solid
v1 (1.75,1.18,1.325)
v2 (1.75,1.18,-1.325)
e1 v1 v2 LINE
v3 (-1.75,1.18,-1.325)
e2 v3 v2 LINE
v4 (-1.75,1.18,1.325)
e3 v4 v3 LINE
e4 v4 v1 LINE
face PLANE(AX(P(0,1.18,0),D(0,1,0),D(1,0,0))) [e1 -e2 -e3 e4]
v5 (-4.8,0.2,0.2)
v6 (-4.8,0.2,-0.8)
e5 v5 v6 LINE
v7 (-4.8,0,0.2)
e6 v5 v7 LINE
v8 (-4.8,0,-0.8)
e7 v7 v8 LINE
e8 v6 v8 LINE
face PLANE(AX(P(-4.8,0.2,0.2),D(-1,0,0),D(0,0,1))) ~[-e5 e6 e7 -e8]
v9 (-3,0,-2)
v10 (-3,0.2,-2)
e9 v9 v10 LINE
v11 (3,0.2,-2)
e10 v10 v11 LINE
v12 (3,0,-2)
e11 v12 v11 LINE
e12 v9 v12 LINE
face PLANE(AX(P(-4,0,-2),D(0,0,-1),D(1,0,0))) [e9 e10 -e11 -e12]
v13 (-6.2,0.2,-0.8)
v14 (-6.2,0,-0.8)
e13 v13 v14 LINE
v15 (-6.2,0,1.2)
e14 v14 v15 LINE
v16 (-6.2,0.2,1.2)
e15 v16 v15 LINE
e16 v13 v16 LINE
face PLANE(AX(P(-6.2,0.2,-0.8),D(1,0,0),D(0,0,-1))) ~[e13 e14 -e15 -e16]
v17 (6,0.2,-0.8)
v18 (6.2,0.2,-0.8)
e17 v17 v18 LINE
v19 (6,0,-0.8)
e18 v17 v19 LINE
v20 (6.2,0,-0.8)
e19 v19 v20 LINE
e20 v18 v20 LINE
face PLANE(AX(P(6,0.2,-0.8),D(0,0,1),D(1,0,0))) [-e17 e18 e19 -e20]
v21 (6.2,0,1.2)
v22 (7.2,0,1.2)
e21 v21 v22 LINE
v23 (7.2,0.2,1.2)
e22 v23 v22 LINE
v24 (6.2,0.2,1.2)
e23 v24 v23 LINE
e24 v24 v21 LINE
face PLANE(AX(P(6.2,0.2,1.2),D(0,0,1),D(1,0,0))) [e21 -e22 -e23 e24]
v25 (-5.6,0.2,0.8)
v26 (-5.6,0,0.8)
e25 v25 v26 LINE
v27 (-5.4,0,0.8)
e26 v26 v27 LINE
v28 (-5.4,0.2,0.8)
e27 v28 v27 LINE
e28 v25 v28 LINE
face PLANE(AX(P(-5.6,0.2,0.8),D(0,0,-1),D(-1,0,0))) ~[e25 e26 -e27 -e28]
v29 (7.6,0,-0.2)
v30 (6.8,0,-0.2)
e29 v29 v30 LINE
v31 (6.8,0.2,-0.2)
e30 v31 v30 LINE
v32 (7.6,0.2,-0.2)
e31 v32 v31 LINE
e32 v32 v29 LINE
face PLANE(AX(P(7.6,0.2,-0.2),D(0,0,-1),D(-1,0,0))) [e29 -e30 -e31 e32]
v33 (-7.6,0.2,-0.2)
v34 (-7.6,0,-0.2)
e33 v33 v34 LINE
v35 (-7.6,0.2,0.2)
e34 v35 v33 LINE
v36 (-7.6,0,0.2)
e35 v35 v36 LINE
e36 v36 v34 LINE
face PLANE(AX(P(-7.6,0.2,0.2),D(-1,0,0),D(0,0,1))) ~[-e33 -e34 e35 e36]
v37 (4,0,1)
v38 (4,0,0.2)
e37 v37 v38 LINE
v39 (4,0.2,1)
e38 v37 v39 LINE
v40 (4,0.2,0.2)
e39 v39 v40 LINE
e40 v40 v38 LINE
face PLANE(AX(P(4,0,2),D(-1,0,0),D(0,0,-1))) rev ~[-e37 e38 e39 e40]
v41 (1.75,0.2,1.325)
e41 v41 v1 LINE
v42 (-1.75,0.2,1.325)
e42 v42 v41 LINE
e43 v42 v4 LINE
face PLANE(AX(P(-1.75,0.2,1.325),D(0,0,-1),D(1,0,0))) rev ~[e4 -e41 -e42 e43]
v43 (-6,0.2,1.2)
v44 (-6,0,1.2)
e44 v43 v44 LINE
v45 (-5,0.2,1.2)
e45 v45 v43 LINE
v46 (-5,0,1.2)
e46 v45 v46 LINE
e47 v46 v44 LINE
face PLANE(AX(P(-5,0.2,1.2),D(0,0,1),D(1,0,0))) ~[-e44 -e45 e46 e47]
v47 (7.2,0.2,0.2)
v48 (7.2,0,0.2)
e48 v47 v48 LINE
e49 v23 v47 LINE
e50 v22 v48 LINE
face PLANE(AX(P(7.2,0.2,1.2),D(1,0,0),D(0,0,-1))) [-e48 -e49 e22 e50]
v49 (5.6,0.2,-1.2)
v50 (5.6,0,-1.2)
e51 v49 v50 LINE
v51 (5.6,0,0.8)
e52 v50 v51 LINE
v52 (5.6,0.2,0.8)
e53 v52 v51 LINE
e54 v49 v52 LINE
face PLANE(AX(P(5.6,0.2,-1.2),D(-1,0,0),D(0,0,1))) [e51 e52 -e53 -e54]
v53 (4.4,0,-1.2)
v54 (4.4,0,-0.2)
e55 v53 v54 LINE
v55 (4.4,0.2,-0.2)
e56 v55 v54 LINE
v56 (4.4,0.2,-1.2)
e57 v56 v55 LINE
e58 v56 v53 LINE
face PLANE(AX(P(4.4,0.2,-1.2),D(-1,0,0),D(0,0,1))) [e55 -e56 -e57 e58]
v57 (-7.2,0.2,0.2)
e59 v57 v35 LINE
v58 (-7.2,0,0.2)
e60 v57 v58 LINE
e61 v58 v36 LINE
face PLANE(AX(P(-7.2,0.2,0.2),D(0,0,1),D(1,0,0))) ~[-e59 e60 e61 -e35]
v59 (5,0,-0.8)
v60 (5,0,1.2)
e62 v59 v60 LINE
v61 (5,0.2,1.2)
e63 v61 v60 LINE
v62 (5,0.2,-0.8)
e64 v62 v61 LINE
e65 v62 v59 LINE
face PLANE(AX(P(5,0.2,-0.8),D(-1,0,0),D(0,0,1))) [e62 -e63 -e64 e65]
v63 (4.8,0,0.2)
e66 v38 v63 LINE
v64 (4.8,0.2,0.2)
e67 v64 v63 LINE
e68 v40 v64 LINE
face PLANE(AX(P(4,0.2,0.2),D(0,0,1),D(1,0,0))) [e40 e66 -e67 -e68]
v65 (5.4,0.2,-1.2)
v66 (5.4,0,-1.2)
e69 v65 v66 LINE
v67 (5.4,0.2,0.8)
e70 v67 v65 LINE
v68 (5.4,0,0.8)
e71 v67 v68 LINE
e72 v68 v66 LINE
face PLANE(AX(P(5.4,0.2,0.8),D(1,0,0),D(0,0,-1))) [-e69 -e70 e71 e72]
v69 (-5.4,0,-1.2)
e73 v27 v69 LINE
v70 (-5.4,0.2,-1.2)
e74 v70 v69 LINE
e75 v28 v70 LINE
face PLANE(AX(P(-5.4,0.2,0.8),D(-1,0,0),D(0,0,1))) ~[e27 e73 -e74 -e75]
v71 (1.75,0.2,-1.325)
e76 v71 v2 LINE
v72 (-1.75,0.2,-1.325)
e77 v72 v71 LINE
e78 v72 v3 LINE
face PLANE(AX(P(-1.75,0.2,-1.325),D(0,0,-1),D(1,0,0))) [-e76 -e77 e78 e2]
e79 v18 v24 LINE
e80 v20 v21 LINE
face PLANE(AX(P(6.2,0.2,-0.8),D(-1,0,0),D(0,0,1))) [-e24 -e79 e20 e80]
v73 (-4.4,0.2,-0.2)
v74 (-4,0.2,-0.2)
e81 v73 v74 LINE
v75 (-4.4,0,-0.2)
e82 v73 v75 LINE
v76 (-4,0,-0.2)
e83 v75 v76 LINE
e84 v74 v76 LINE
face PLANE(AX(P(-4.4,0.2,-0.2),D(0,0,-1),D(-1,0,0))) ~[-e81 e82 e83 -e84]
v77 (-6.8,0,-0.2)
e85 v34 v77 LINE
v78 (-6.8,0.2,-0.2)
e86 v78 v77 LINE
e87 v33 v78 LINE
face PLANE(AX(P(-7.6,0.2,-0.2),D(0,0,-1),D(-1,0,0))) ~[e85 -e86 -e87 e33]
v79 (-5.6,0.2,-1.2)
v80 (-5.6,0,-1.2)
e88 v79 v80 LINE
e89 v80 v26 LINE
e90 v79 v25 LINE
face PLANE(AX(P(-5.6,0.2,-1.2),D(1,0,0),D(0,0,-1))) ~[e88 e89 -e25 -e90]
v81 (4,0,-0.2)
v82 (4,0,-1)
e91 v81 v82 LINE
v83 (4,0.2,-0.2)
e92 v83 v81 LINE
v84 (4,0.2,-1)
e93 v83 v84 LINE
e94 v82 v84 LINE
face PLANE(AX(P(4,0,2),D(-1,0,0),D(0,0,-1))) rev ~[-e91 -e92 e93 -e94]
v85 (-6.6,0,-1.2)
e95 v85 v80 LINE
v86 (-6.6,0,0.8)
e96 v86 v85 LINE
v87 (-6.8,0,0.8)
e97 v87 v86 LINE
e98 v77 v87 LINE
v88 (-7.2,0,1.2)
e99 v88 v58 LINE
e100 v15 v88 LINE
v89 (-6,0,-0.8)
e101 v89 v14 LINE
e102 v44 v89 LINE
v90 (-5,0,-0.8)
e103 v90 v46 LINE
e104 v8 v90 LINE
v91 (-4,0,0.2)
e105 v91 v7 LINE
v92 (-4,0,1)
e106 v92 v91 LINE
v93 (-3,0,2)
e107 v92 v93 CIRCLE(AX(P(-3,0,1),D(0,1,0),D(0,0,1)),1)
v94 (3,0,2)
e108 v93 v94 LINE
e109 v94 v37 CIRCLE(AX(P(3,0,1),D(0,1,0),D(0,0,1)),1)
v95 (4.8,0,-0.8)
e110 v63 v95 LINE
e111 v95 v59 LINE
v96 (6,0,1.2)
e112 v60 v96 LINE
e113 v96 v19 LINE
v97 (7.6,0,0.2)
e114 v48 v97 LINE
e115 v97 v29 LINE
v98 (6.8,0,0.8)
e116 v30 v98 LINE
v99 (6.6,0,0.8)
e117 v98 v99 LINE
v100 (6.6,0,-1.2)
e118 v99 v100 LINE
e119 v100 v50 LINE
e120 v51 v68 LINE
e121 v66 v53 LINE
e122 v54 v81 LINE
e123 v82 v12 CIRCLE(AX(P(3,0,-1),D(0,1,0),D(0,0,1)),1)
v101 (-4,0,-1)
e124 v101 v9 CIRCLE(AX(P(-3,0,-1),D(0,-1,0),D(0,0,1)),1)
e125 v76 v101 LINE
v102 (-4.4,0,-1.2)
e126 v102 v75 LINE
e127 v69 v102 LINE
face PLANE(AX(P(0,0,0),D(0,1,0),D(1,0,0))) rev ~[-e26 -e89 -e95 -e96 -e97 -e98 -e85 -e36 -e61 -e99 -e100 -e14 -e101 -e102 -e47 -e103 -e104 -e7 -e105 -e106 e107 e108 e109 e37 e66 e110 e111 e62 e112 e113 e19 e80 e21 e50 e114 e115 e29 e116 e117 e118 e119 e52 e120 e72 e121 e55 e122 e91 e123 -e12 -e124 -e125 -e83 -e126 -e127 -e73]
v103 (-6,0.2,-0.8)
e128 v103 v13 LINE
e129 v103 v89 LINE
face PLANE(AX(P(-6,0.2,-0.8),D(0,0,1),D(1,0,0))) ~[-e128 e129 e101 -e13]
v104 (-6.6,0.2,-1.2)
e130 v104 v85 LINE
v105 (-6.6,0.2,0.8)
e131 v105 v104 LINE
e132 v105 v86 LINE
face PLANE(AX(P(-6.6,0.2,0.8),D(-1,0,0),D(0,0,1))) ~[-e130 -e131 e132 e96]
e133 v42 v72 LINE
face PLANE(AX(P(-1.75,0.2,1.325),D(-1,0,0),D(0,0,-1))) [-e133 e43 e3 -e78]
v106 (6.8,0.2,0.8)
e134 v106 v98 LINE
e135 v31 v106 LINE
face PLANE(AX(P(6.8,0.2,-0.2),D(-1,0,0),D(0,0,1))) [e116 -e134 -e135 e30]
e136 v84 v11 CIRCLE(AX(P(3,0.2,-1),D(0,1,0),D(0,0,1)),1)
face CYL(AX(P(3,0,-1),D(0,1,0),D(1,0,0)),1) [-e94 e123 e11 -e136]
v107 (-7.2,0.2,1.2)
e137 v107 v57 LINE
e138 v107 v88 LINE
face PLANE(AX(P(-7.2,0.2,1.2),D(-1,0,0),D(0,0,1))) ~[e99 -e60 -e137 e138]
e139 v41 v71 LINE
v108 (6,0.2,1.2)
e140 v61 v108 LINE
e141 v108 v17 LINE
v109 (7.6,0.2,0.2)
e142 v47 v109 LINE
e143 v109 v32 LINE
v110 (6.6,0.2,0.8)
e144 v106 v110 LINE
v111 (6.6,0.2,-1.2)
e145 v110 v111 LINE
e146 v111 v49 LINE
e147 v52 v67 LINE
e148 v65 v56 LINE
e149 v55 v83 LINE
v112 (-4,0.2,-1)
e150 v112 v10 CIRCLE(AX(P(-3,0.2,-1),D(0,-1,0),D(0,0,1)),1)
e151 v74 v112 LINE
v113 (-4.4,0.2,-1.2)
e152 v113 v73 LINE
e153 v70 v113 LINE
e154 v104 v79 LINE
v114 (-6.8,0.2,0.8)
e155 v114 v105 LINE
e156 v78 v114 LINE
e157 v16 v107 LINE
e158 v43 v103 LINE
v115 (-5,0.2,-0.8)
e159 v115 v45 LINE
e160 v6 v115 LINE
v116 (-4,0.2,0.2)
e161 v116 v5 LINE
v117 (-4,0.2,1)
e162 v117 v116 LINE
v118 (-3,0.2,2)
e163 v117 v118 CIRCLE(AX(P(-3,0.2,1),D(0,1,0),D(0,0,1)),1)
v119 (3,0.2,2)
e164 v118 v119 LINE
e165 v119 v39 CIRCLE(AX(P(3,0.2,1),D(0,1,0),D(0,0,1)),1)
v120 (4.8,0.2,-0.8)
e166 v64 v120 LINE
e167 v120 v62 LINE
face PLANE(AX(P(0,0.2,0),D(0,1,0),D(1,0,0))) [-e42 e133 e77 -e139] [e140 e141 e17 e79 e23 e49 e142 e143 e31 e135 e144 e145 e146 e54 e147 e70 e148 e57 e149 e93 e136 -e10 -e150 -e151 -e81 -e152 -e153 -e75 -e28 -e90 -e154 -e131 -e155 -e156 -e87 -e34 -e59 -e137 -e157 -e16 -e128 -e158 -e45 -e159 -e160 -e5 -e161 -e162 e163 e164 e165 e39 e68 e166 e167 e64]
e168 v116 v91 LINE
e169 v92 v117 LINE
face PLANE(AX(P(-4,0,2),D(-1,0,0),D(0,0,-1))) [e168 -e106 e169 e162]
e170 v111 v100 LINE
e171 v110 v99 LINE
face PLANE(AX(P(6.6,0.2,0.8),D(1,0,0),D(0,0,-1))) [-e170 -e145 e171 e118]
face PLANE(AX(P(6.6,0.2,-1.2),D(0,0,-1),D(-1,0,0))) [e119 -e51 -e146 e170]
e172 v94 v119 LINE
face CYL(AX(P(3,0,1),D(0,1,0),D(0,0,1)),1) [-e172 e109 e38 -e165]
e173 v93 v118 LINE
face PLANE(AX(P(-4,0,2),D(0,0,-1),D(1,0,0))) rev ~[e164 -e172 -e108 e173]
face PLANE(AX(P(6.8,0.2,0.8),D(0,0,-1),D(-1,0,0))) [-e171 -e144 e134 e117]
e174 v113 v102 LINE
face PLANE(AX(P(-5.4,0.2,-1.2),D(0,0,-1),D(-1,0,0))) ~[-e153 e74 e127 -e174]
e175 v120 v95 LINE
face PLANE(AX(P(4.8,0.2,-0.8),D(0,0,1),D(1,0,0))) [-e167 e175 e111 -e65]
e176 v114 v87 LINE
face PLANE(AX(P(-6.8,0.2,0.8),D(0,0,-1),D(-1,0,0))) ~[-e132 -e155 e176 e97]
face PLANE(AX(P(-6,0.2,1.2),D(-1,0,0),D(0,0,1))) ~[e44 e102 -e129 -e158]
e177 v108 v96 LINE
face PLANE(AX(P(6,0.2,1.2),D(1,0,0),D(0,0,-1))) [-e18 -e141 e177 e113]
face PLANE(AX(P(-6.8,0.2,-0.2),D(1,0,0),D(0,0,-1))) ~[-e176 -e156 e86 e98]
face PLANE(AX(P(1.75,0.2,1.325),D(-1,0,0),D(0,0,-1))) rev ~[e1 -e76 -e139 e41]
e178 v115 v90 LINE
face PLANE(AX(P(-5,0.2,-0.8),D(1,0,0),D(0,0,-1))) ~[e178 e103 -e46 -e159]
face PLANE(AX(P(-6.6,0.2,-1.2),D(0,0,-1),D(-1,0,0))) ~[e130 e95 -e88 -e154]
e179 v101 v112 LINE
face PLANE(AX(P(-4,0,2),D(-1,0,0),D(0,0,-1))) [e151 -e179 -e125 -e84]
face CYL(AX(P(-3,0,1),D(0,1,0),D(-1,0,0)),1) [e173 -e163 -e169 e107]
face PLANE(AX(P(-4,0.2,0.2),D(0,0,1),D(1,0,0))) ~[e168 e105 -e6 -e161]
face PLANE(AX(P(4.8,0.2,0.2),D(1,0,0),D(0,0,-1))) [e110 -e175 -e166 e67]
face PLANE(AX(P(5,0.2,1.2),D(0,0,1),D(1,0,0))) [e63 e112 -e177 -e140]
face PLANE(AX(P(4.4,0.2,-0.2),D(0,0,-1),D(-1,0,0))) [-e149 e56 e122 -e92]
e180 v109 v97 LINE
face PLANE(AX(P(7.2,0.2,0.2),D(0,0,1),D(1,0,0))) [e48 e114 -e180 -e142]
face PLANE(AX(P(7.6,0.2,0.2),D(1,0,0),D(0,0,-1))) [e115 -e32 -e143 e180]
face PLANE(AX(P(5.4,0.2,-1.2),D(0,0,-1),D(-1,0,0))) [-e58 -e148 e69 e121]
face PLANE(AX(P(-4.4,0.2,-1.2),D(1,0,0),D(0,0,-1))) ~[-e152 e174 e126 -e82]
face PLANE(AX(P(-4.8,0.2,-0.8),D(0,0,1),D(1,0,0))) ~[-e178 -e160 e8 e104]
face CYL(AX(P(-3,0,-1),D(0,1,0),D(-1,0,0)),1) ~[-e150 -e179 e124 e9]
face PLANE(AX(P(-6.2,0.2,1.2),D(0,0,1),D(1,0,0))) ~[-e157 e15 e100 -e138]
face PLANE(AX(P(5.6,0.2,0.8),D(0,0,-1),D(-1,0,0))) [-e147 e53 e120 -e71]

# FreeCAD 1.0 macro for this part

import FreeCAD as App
import Part
import Sketcher
Q = App.Units.Quantity


def edges_at(feature, points):
    """Names of the edges that pass closest to the given points."""
    edges = feature.Shape.Edges
    near = lambda p: min(range(len(edges)), key=lambda i: edges[i].distToShape(Part.Vertex(*p))[0])
    return sorted({f"Edge{near(p) + 1}" for p in points})


def add_polygon(sketch, points):
    """Adds a closed chain of lines whose ends are joined by coincident constraints."""
    first, n = sketch.GeometryCount, len(points)
    for a, b in zip(points, points[1:] + points[:1]):
        sketch.addGeometry(Part.LineSegment(App.Vector(*a, 0), App.Vector(*b, 0)), False)
    for i in range(n):
        sketch.addConstraint(Sketcher.Constraint("Coincident", first + i, 2, first + (i + 1) % n, 1))

doc = App.newDocument("Part")
body = doc.addObject("PartDesign::Body", "Body")

sketch1 = doc.addObject("Sketcher::SketchObject", "Sketch")
body.addObject(sketch1)
sketch1.AttachmentSupport = (doc.XZ_Plane, [""])
sketch1.MapMode = "FlatFace"
add_polygon(sketch1, [(-4, -2), (-4, 2), (4, 2), (4, -2)])
sketch1.addConstraint([
    Sketcher.Constraint("Vertical", 0),
    Sketcher.Constraint("Horizontal", 1),
    Sketcher.Constraint("Vertical", 2),
    Sketcher.Constraint("Horizontal", 3),
    Sketcher.Constraint("Symmetric", 0, 2, 2, 2, -1, 1),
    Sketcher.Constraint("DistanceX", 1, 1, 1, 2, Q("8 mm")),
    Sketcher.Constraint("DistanceY", 0, 1, 0, 2, Q("4 mm")),
])
pad1 = doc.addObject("PartDesign::Pad", "Pad")
body.addObject(pad1)
pad1.Profile = sketch1
pad1.Length = 0.2
pad1.Reversed = True
doc.recompute()

fillet = doc.addObject("PartDesign::Fillet", "Fillet")
body.addObject(fillet)
fillet.Base = (pad1, edges_at(pad1, [
    (4, 0.1, 2),
    (-4, 0.1, 2),
    (-4, 0.1, -2),
    (4, 0.1, -2),
]))
fillet.Radius = 1

sketch2 = doc.addObject("Sketcher::SketchObject", "Sketch001")
body.addObject(sketch2)
sketch2.AttachmentSupport = (doc.XZ_Plane, [""])
sketch2.MapMode = "FlatFace"
sketch2.AttachmentOffset = App.Placement(App.Vector(0, 0, -0.2), App.Rotation())
add_polygon(sketch2, [(4, -0.2), (4, 0.2), (4.8, 0.2), (4.8, -0.8), (5, -0.8), (5, 1.2), (6, 1.2), (6, -0.8), (6.2, -0.8), (6.2, 1.2), (7.2, 1.2), (7.2, 0.2), (7.6, 0.2), (7.6, -0.2), (6.8, -0.2), (6.8, 0.8), (6.6, 0.8), (6.6, -1.2), (5.6, -1.2), (5.6, 0.8), (5.4, 0.8), (5.4, -1.2), (4.4, -1.2), (4.4, -0.2)])
sketch2.addConstraint([
    Sketcher.Constraint("Vertical", 0),
    Sketcher.Constraint("Horizontal", 1),
    Sketcher.Constraint("Vertical", 2),
    Sketcher.Constraint("Horizontal", 3),
    Sketcher.Constraint("Vertical", 4),
    Sketcher.Constraint("Horizontal", 5),
    Sketcher.Constraint("Vertical", 6),
    Sketcher.Constraint("Horizontal", 7),
    Sketcher.Constraint("Vertical", 8),
    Sketcher.Constraint("Horizontal", 9),
    Sketcher.Constraint("Vertical", 10),
    Sketcher.Constraint("Horizontal", 11),
    Sketcher.Constraint("Vertical", 12),
    Sketcher.Constraint("Horizontal", 13),
    Sketcher.Constraint("Vertical", 14),
    Sketcher.Constraint("Horizontal", 15),
    Sketcher.Constraint("Vertical", 16),
    Sketcher.Constraint("Horizontal", 17),
    Sketcher.Constraint("Vertical", 18),
    Sketcher.Constraint("Horizontal", 19),
    Sketcher.Constraint("Vertical", 20),
    Sketcher.Constraint("Horizontal", 21),
    Sketcher.Constraint("Vertical", 22),
    Sketcher.Constraint("Horizontal", 23),
    Sketcher.Constraint("Horizontal", 3, 2, 6, 2),
    Sketcher.Constraint("Horizontal", 5, 2, 8, 2),
    Sketcher.Constraint("Horizontal", 1, 2, 10, 2),
    Sketcher.Constraint("Horizontal", 15, 2, 18, 2),
    Sketcher.Constraint("Horizontal", 17, 2, 20, 2),
    Sketcher.Constraint("Horizontal", 13, 2, 22, 2),
    Sketcher.Constraint("Equal", 3, 7),
    Sketcher.Constraint("Equal", 5, 9),
    Sketcher.Constraint("Equal", 1, 13),
    Sketcher.Constraint("Equal", 7, 15),
    Sketcher.Constraint("Equal", 9, 17),
    Sketcher.Constraint("Equal", 15, 19),
    Sketcher.Constraint("Equal", 17, 21),
    Sketcher.Constraint("Equal", 23, 0),
    Sketcher.Constraint("Equal", 21, 2),
    Sketcher.Constraint("Equal", 2, 10),
    Sketcher.Constraint("Equal", 10, 14),
    Sketcher.Constraint("Equal", 8, 16),
    Sketcher.Constraint("DistanceX", 5, 1, 5, 2, Q("1 mm")),
    Sketcher.Constraint("DistanceX", 1, 1, 1, 2, Q("0.8 mm")),
    Sketcher.Constraint("DistanceX", 3, 1, 3, 2, Q("0.2 mm")),
    Sketcher.Constraint("DistanceX", 11, 1, 11, 2, Q("0.4 mm")),
    Sketcher.Constraint("DistanceX", -1, 1, 0, 2, Q("4 mm")),
    Sketcher.Constraint("DistanceY", -1, 1, 0, 2, Q("0.2 mm")),
])
pad2 = doc.addObject("PartDesign::Pad", "Pad001")
body.addObject(pad2)
pad2.Profile = sketch2
pad2.Length = 0.2
doc.recompute()

mirrored = doc.addObject("PartDesign::Mirrored", "Mirrored")
body.addObject(mirrored)
mirrored.Originals = [pad2]
mirrored.MirrorPlane = (doc.YZ_Plane, [""])
body.Tip = mirrored

sketch3 = doc.addObject("Sketcher::SketchObject", "Sketch002")
body.addObject(sketch3)
sketch3.AttachmentSupport = (doc.XZ_Plane, [""])
sketch3.MapMode = "FlatFace"
sketch3.AttachmentOffset = App.Placement(App.Vector(0, 0, -0.2), App.Rotation())
add_polygon(sketch3, [(-1.8, -1.3), (-1.8, 1.3), (1.8, 1.3), (1.8, -1.3)])
sketch3.addConstraint([
    Sketcher.Constraint("Vertical", 0),
    Sketcher.Constraint("Horizontal", 1),
    Sketcher.Constraint("Vertical", 2),
    Sketcher.Constraint("Horizontal", 3),
    Sketcher.Constraint("Symmetric", 0, 2, 2, 2, -1, 1),
    Sketcher.Constraint("DistanceX", 1, 1, 1, 2, Q("3.5 mm")),
    Sketcher.Constraint("DistanceY", 0, 1, 0, 2, Q("2.65 mm")),
])
pad3 = doc.addObject("PartDesign::Pad", "Pad002")
body.addObject(pad3)
pad3.Profile = sketch3
pad3.Length = 0.98
pad3.Reversed = True

doc.recompute()
